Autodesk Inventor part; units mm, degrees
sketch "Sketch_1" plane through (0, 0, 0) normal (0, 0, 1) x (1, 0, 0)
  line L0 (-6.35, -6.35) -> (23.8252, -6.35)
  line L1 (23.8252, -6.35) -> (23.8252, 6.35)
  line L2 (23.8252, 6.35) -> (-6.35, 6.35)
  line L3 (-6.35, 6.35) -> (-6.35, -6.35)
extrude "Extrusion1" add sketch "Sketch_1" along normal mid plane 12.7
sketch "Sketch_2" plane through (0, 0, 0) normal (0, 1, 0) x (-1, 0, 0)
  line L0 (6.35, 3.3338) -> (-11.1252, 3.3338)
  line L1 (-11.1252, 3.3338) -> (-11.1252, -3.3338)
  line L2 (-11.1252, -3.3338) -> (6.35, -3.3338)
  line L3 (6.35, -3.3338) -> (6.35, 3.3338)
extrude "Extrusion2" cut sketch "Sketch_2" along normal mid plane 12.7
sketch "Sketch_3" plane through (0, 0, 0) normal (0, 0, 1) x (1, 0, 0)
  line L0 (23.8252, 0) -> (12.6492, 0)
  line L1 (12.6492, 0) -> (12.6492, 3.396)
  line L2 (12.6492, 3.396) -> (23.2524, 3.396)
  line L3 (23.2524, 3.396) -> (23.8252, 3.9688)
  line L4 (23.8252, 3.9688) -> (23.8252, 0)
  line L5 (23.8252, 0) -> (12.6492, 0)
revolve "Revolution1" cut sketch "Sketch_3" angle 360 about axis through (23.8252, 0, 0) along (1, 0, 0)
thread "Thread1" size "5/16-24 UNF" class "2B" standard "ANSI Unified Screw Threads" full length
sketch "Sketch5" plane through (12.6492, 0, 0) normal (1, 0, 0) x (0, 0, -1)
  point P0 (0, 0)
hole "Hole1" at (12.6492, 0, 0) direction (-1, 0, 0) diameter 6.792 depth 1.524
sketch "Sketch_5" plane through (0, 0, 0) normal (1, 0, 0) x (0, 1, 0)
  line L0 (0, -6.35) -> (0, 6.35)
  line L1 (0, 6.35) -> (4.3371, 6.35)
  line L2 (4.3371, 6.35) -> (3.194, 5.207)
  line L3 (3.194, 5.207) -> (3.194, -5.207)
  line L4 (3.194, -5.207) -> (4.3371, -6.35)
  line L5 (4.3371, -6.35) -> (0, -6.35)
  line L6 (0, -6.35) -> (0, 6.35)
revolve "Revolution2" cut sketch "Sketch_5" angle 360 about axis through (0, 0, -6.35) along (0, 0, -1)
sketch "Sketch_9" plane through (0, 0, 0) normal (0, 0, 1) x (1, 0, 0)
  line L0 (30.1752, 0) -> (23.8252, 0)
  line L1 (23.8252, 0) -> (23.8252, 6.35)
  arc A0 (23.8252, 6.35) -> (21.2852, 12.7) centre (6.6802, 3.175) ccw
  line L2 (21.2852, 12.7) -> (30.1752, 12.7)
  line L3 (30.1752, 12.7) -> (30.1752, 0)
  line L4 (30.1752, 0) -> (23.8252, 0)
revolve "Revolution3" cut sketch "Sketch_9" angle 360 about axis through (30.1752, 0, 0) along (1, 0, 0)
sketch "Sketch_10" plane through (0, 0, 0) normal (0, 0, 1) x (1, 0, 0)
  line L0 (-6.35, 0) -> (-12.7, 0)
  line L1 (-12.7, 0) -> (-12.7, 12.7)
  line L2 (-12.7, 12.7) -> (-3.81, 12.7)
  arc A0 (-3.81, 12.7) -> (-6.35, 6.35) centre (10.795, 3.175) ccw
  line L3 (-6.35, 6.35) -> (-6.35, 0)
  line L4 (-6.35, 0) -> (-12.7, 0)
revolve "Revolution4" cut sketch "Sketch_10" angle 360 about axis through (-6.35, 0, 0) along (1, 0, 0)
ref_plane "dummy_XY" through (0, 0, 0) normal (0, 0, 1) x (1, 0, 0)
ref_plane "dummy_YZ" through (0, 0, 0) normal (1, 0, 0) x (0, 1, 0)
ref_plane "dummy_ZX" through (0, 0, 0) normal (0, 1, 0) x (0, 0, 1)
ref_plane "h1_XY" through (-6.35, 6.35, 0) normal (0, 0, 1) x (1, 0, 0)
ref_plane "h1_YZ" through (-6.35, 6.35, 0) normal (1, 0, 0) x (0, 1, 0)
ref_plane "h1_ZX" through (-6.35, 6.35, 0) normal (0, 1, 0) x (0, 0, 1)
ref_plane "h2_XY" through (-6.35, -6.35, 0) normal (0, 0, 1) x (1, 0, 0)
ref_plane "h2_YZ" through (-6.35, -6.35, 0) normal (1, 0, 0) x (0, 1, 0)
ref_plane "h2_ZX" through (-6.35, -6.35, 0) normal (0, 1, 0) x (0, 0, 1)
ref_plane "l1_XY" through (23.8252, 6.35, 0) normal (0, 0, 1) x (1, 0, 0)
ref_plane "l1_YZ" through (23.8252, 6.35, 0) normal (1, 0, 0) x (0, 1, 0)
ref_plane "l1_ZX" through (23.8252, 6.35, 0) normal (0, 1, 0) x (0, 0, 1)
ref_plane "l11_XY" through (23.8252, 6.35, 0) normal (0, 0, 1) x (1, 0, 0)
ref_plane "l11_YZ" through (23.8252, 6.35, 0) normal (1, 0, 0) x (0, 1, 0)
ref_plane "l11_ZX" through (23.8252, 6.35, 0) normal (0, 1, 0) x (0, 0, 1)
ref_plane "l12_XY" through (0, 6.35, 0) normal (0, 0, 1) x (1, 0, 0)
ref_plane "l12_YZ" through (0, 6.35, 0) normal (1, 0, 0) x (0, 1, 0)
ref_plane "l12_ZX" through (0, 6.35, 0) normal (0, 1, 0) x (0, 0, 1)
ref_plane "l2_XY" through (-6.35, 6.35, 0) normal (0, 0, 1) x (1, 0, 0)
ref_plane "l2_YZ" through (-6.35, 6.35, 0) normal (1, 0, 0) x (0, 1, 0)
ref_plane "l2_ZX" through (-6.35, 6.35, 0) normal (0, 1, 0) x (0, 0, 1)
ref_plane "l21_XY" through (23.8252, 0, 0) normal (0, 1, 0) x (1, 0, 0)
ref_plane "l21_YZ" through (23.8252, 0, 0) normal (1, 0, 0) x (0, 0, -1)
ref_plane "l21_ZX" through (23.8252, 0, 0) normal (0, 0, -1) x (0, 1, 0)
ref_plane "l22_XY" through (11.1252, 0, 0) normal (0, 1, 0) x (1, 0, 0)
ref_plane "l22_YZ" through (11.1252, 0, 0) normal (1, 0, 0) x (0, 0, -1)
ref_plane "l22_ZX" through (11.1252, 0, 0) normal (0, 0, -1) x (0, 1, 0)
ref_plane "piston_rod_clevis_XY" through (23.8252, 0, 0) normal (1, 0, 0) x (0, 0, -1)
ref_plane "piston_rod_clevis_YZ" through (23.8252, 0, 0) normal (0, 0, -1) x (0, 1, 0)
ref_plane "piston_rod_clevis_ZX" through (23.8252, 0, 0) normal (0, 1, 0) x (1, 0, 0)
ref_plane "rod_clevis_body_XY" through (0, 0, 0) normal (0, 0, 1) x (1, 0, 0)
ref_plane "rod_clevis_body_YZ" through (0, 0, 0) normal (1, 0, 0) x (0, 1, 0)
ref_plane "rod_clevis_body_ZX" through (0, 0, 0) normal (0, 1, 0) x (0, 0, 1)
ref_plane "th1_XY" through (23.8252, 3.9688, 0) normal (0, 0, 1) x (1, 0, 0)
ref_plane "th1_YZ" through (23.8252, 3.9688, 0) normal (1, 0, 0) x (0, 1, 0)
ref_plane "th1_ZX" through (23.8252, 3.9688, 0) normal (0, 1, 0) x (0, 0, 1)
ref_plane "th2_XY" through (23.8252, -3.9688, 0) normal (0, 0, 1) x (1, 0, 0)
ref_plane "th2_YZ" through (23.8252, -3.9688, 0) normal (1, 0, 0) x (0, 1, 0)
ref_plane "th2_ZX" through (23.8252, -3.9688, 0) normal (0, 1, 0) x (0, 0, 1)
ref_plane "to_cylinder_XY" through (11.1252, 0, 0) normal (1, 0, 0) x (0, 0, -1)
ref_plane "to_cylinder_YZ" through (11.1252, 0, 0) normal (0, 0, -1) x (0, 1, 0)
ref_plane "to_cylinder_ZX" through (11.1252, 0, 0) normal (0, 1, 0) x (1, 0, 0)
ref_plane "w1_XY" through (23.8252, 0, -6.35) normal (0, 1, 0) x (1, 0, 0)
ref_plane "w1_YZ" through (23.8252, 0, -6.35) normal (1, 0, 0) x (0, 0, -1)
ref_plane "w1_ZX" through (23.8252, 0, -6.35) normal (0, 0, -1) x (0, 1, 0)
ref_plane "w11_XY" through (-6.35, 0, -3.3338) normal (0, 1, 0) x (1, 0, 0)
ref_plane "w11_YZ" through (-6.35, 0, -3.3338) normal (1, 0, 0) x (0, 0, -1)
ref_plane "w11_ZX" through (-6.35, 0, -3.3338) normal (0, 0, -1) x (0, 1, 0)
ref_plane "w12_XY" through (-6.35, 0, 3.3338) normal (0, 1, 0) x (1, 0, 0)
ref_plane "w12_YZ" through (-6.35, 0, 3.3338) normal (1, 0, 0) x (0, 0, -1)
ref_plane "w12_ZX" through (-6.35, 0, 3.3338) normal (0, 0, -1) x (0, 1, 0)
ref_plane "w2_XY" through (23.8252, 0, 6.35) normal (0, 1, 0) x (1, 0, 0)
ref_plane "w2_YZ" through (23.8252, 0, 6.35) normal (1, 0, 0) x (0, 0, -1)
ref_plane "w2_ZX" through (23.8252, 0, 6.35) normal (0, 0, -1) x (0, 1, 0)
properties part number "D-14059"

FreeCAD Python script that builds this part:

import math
import FreeCAD as App
import Part
import Sketcher
from FreeCAD import Vector
Q = App.Units.Quantity

doc = App.newDocument("Part")
body = doc.addObject("PartDesign::Body", "Body")

# Sketch on XY plane
sketch1 = body.newObject("Sketcher::SketchObject", "Sketch")
sketch1.AttachmentSupport = (doc.getObject("XY_Plane"), [""])
sketch1.MapMode = "FlatFace"
sketch1.addGeometry(Part.LineSegment(Vector(-6, 6, 0), Vector(-6, -6, 0)), False)
sketch1.addGeometry(Part.LineSegment(Vector(-6, -6, 0), Vector(24, -6, 0)), False)
sketch1.addGeometry(Part.LineSegment(Vector(24, -6, 0), Vector(24, 6, 0)), False)
sketch1.addGeometry(Part.LineSegment(Vector(24, 6, 0), Vector(-6, 6, 0)), False)
sketch1.addConstraint(Sketcher.Constraint("Coincident", 0, 2, 1, 1))
sketch1.addConstraint(Sketcher.Constraint("Coincident", 1, 2, 2, 1))
sketch1.addConstraint(Sketcher.Constraint("Coincident", 2, 2, 3, 1))
sketch1.addConstraint(Sketcher.Constraint("Coincident", 3, 2, 0, 1))
sketch1.addConstraint(Sketcher.Constraint("Vertical", 0))
sketch1.addConstraint(Sketcher.Constraint("Horizontal", 1))
sketch1.addConstraint(Sketcher.Constraint("Vertical", 2))
sketch1.addConstraint(Sketcher.Constraint("Horizontal", 3))
sketch1.addConstraint(Sketcher.Constraint("DistanceY", 0, 2, 0, 1, Q("0.5 in")))
sketch1.addConstraint(Sketcher.Constraint("DistanceX", 1, 1, 1, 2, Q("1.188 in")))
sketch1.addConstraint(Sketcher.Constraint("DistanceX", 0, 2, -1, 1, Q("0.25 in")))
sketch1.addConstraint(Sketcher.Constraint("DistanceY", 0, 2, -1, 1, Q("0.25 in")))
pad1 = body.newObject("PartDesign::Pad", "Pad")
pad1.Profile = sketch1
pad1.Length = Q("0.5 in")
pad1.Midplane = True

# Sketch on XZ plane
sketch2 = body.newObject("Sketcher::SketchObject", "Sketch001")
sketch2.AttachmentSupport = (doc.getObject("XZ_Plane"), [""])
sketch2.MapMode = "FlatFace"
sketch2.addGeometry(Part.LineSegment(Vector(-6, -3, 0), Vector(-6, 3, 0)), False)
sketch2.addGeometry(Part.LineSegment(Vector(-6, 3, 0), Vector(11, 3, 0)), False)
sketch2.addGeometry(Part.LineSegment(Vector(11, 3, 0), Vector(11, -3, 0)), False)
sketch2.addGeometry(Part.LineSegment(Vector(11, -3, 0), Vector(-6, -3, 0)), False)
sketch2.addConstraint(Sketcher.Constraint("Coincident", 0, 2, 1, 1))
sketch2.addConstraint(Sketcher.Constraint("Coincident", 1, 2, 2, 1))
sketch2.addConstraint(Sketcher.Constraint("Coincident", 2, 2, 3, 1))
sketch2.addConstraint(Sketcher.Constraint("Coincident", 3, 2, 0, 1))
sketch2.addConstraint(Sketcher.Constraint("Vertical", 0))
sketch2.addConstraint(Sketcher.Constraint("Horizontal", 1))
sketch2.addConstraint(Sketcher.Constraint("Vertical", 2))
sketch2.addConstraint(Sketcher.Constraint("Horizontal", 3))
sketch2.addConstraint(Sketcher.Constraint("DistanceX", 1, 1, 1, 2, Q("0.688 in")))
sketch2.addConstraint(Sketcher.Constraint("DistanceX", 0, 2, -1, 1, Q("0.25 in")))
sketch2.addConstraint(Sketcher.Constraint("DistanceY", 0, 1, 0, 2, Q("0.2625 in")))
sketch2.addConstraint(Sketcher.Constraint("DistanceY", -1, 1, 0, 2, 3.3338))
pocket1 = body.newObject("PartDesign::Pocket", "Pocket")
pocket1.Profile = sketch2
pocket1.Length = Q("0.5 in")
pocket1.Midplane = True

# Sketch on XY plane
sketch3 = body.newObject("Sketcher::SketchObject", "Sketch002")
sketch3.AttachmentSupport = (doc.getObject("XY_Plane"), [""])
sketch3.MapMode = "FlatFace"
sketch3.addGeometry(Part.LineSegment(Vector(12.6, 0, 0), Vector(23.8, 0, 0)), False)
sketch3.addGeometry(Part.LineSegment(Vector(23.8, 0, 0), Vector(23.8, 4, 0)), False)
sketch3.addGeometry(Part.LineSegment(Vector(23.8, 4, 0), Vector(23.3, 3.4, 0)), False)
sketch3.addGeometry(Part.LineSegment(Vector(23.3, 3.4, 0), Vector(12.6, 3.4, 0)), False)
sketch3.addGeometry(Part.LineSegment(Vector(12.6, 3.4, 0), Vector(12.6, 0, 0)), False)
sketch3.addConstraint(Sketcher.Constraint("Coincident", 0, 2, 1, 1))
sketch3.addConstraint(Sketcher.Constraint("Coincident", 1, 2, 2, 1))
sketch3.addConstraint(Sketcher.Constraint("Coincident", 2, 2, 3, 1))
sketch3.addConstraint(Sketcher.Constraint("Coincident", 3, 2, 4, 1))
sketch3.addConstraint(Sketcher.Constraint("Coincident", 4, 2, 0, 1))
sketch3.addConstraint(Sketcher.Constraint("Horizontal", 0))
sketch3.addConstraint(Sketcher.Constraint("Vertical", 1))
sketch3.addConstraint(Sketcher.Constraint("Horizontal", 3))
sketch3.addConstraint(Sketcher.Constraint("Vertical", 4))
sketch3.addConstraint(Sketcher.Constraint("PointOnObject", 0, 2, -1))
sketch3.addConstraint(Sketcher.Constraint("Angle", 2, Q("-135 deg")))
sketch3.addConstraint(Sketcher.Constraint("DistanceX", 0, 1, 0, 2, Q("0.44 in")))
sketch3.addConstraint(Sketcher.Constraint("DistanceY", 1, 1, 1, 2, Q("0.156252 in")))
sketch3.addConstraint(Sketcher.Constraint("DistanceY", 4, 2, 4, 1, Q("0.1337 in")))
sketch3.addConstraint(Sketcher.Constraint("DistanceX", -1, 1, 0, 2, Q("0.938 in")))
groove = body.newObject("PartDesign::Groove", "Groove")
groove.Profile = sketch3
groove.ReferenceAxis = (sketch3, ["H_Axis"])
groove.Angle = 360

# Sketch on YZ plane
sketch4 = body.newObject("Sketcher::SketchObject", "Sketch003")
sketch4.AttachmentSupport = (doc.getObject("YZ_Plane"), [""])
sketch4.MapMode = "FlatFace"
sketch4.AttachmentOffset = App.Placement(Vector(0, 0, 0.498 * 25.4), App.Rotation())
sketch4.addGeometry(Part.Circle(Vector(0, 0, 0), Vector(0, 0, 1), 3.4), False)
sketch4.addConstraint(Sketcher.Constraint("Coincident", 0, 3, -1, 1))
sketch4.addConstraint(Sketcher.Constraint("Diameter", 0, Q("0.2674 in")))
doc.recompute()
hole = body.newObject("PartDesign::Hole", "Hole")
hole.Profile = sketch4
hole.ThreadType = "None"
hole.Diameter = Q("0.2674016 in")
hole.DepthType = "Dimension"
hole.Depth = Q("0.06 in")
hole.DrillPoint = "Flat"

# Sketch on YZ plane
sketch5 = body.newObject("Sketcher::SketchObject", "Sketch004")
sketch5.AttachmentSupport = (doc.getObject("YZ_Plane"), [""])
sketch5.MapMode = "FlatFace"
sketch5.addGeometry(Part.LineSegment(Vector(0, 6.3, 0), Vector(0, -6.3, 0)), False)
sketch5.addGeometry(Part.LineSegment(Vector(0, -6.3, 0), Vector(4.3, -6.3, 0)), False)
sketch5.addGeometry(Part.LineSegment(Vector(4.3, -6.3, 0), Vector(3.2, -5.2, 0)), False)
sketch5.addGeometry(Part.LineSegment(Vector(3.2, -5.2, 0), Vector(3.2, 5.2, 0)), False)
sketch5.addGeometry(Part.LineSegment(Vector(3.2, 5.2, 0), Vector(4.3, 6.3, 0)), False)
sketch5.addGeometry(Part.LineSegment(Vector(4.3, 6.3, 0), Vector(0, 6.3, 0)), False)
sketch5.addConstraint(Sketcher.Constraint("Coincident", 0, 2, 1, 1))
sketch5.addConstraint(Sketcher.Constraint("Coincident", 1, 2, 2, 1))
sketch5.addConstraint(Sketcher.Constraint("Coincident", 2, 2, 3, 1))
sketch5.addConstraint(Sketcher.Constraint("Coincident", 3, 2, 4, 1))
sketch5.addConstraint(Sketcher.Constraint("Coincident", 4, 2, 5, 1))
sketch5.addConstraint(Sketcher.Constraint("Coincident", 5, 2, 0, 1))
sketch5.addConstraint(Sketcher.Constraint("Vertical", 0))
sketch5.addConstraint(Sketcher.Constraint("Horizontal", 1))
sketch5.addConstraint(Sketcher.Constraint("Vertical", 3))
sketch5.addConstraint(Sketcher.Constraint("Horizontal", 5))
sketch5.addConstraint(Sketcher.Constraint("Symmetric", 0, 2, 5, 2, -1, 1))
sketch5.addConstraint(Sketcher.Constraint("Perpendicular", 2, 4))
sketch5.addConstraint(Sketcher.Constraint("Vertical", 1, 2, 4, 2))
sketch5.addConstraint(Sketcher.Constraint("Equal", 2, 4))
sketch5.addConstraint(Sketcher.Constraint("DistanceY", 0, 2, 0, 1, Q("0.5 in")))
sketch5.addConstraint(Sketcher.Constraint("DistanceY", 3, 1, 3, 2, Q("0.41 in")))
sketch5.addConstraint(Sketcher.Constraint("DistanceX", 1, 1, 1, 2, 4.337))
groove2 = body.newObject("PartDesign::Groove", "Groove001")
groove2.Profile = sketch5
groove2.ReferenceAxis = (sketch5, ["V_Axis"])
groove2.Angle = 360

# Sketch on XY plane
sketch6 = body.newObject("Sketcher::SketchObject", "Sketch005")
sketch6.AttachmentSupport = (doc.getObject("XY_Plane"), [""])
sketch6.MapMode = "FlatFace"
sketch6.addGeometry(Part.LineSegment(Vector(24, 0, 0), Vector(30, 0, 0)), False)
sketch6.addGeometry(Part.LineSegment(Vector(30, 0, 0), Vector(30, 13, 0)), False)
sketch6.addGeometry(Part.LineSegment(Vector(30, 13, 0), Vector(21, 13, 0)), False)
sketch6.addGeometry(Part.ArcOfCircle(Part.Circle(Vector(7, 3, 0), Vector(0, 0, 1), 17), math.radians(10), math.radians(33)), False)
sketch6.addGeometry(Part.LineSegment(Vector(24, 6, 0), Vector(24, 0, 0)), False)
sketch6.addConstraint(Sketcher.Constraint("Coincident", 0, 2, 1, 1))
sketch6.addConstraint(Sketcher.Constraint("Coincident", 1, 2, 2, 1))
sketch6.addConstraint(Sketcher.Constraint("Coincident", 2, 2, 3, 2))
sketch6.addConstraint(Sketcher.Constraint("Coincident", 3, 1, 4, 1))
sketch6.addConstraint(Sketcher.Constraint("Coincident", 4, 2, 0, 1))
sketch6.addConstraint(Sketcher.Constraint("Horizontal", 0))
sketch6.addConstraint(Sketcher.Constraint("Vertical", 1))
sketch6.addConstraint(Sketcher.Constraint("Horizontal", 2))
sketch6.addConstraint(Sketcher.Constraint("Vertical", 4))
sketch6.addConstraint(Sketcher.Constraint("PointOnObject", 0, 2, -1))
sketch6.addConstraint(Sketcher.Constraint("Equal", 0, 4))
sketch6.addConstraint(Sketcher.Constraint("DistanceY", 1, 1, 1, 2, Q("0.5 in")))
sketch6.addConstraint(Sketcher.Constraint("DistanceX", 0, 1, 0, 2, Q("0.25 in")))
sketch6.addConstraint(Sketcher.Constraint("DistanceX", 2, 2, 2, 1, Q("0.35 in")))
sketch6.addConstraint(Sketcher.Constraint("Radius", 3, 17.4365))
sketch6.addConstraint(Sketcher.Constraint("DistanceX", -1, 1, 3, 3, Q("0.263 in")))
groove3 = body.newObject("PartDesign::Groove", "Groove002")
groove3.Profile = sketch6
groove3.ReferenceAxis = (sketch6, ["H_Axis"])
groove3.Angle = 360

# Sketch on XY plane
sketch7 = body.newObject("Sketcher::SketchObject", "Sketch006")
sketch7.AttachmentSupport = (doc.getObject("XY_Plane"), [""])
sketch7.MapMode = "FlatFace"
sketch7.addGeometry(Part.LineSegment(Vector(-13, 0, 0), Vector(-6, 0, 0)), False)
sketch7.addGeometry(Part.LineSegment(Vector(-6, 0, 0), Vector(-6, 6, 0)), False)
sketch7.addGeometry(Part.ArcOfCircle(Part.Circle(Vector(11, 3, 0), Vector(0, 0, 1), 17), math.radians(147), math.radians(170)), False)
sketch7.addGeometry(Part.LineSegment(Vector(-4, 13, 0), Vector(-13, 13, 0)), False)
sketch7.addGeometry(Part.LineSegment(Vector(-13, 13, 0), Vector(-13, 0, 0)), False)
sketch7.addConstraint(Sketcher.Constraint("Coincident", 0, 2, 1, 1))
sketch7.addConstraint(Sketcher.Constraint("Coincident", 1, 2, 2, 2))
sketch7.addConstraint(Sketcher.Constraint("Coincident", 2, 1, 3, 1))
sketch7.addConstraint(Sketcher.Constraint("Coincident", 3, 2, 4, 1))
sketch7.addConstraint(Sketcher.Constraint("Coincident", 4, 2, 0, 1))
sketch7.addConstraint(Sketcher.Constraint("Horizontal", 0))
sketch7.addConstraint(Sketcher.Constraint("Vertical", 1))
sketch7.addConstraint(Sketcher.Constraint("Horizontal", 3))
sketch7.addConstraint(Sketcher.Constraint("Vertical", 4))
sketch7.addConstraint(Sketcher.Constraint("PointOnObject", 0, 2, -1))
sketch7.addConstraint(Sketcher.Constraint("Equal", 0, 1))
sketch7.addConstraint(Sketcher.Constraint("DistanceY", 4, 2, 4, 1, Q("0.5 in")))
sketch7.addConstraint(Sketcher.Constraint("DistanceX", 0, 1, 0, 2, Q("0.25 in")))
sketch7.addConstraint(Sketcher.Constraint("DistanceX", 3, 2, 3, 1, Q("0.35 in")))
sketch7.addConstraint(Sketcher.Constraint("DistanceX", 3, 2, -1, 1, Q("0.5 in")))
sketch7.addConstraint(Sketcher.Constraint("Radius", 2, 17.4365))
groove4 = body.newObject("PartDesign::Groove", "Groove003")
groove4.Profile = sketch7
groove4.ReferenceAxis = (sketch7, ["H_Axis"])
groove4.Angle = 360

doc.recompute()
